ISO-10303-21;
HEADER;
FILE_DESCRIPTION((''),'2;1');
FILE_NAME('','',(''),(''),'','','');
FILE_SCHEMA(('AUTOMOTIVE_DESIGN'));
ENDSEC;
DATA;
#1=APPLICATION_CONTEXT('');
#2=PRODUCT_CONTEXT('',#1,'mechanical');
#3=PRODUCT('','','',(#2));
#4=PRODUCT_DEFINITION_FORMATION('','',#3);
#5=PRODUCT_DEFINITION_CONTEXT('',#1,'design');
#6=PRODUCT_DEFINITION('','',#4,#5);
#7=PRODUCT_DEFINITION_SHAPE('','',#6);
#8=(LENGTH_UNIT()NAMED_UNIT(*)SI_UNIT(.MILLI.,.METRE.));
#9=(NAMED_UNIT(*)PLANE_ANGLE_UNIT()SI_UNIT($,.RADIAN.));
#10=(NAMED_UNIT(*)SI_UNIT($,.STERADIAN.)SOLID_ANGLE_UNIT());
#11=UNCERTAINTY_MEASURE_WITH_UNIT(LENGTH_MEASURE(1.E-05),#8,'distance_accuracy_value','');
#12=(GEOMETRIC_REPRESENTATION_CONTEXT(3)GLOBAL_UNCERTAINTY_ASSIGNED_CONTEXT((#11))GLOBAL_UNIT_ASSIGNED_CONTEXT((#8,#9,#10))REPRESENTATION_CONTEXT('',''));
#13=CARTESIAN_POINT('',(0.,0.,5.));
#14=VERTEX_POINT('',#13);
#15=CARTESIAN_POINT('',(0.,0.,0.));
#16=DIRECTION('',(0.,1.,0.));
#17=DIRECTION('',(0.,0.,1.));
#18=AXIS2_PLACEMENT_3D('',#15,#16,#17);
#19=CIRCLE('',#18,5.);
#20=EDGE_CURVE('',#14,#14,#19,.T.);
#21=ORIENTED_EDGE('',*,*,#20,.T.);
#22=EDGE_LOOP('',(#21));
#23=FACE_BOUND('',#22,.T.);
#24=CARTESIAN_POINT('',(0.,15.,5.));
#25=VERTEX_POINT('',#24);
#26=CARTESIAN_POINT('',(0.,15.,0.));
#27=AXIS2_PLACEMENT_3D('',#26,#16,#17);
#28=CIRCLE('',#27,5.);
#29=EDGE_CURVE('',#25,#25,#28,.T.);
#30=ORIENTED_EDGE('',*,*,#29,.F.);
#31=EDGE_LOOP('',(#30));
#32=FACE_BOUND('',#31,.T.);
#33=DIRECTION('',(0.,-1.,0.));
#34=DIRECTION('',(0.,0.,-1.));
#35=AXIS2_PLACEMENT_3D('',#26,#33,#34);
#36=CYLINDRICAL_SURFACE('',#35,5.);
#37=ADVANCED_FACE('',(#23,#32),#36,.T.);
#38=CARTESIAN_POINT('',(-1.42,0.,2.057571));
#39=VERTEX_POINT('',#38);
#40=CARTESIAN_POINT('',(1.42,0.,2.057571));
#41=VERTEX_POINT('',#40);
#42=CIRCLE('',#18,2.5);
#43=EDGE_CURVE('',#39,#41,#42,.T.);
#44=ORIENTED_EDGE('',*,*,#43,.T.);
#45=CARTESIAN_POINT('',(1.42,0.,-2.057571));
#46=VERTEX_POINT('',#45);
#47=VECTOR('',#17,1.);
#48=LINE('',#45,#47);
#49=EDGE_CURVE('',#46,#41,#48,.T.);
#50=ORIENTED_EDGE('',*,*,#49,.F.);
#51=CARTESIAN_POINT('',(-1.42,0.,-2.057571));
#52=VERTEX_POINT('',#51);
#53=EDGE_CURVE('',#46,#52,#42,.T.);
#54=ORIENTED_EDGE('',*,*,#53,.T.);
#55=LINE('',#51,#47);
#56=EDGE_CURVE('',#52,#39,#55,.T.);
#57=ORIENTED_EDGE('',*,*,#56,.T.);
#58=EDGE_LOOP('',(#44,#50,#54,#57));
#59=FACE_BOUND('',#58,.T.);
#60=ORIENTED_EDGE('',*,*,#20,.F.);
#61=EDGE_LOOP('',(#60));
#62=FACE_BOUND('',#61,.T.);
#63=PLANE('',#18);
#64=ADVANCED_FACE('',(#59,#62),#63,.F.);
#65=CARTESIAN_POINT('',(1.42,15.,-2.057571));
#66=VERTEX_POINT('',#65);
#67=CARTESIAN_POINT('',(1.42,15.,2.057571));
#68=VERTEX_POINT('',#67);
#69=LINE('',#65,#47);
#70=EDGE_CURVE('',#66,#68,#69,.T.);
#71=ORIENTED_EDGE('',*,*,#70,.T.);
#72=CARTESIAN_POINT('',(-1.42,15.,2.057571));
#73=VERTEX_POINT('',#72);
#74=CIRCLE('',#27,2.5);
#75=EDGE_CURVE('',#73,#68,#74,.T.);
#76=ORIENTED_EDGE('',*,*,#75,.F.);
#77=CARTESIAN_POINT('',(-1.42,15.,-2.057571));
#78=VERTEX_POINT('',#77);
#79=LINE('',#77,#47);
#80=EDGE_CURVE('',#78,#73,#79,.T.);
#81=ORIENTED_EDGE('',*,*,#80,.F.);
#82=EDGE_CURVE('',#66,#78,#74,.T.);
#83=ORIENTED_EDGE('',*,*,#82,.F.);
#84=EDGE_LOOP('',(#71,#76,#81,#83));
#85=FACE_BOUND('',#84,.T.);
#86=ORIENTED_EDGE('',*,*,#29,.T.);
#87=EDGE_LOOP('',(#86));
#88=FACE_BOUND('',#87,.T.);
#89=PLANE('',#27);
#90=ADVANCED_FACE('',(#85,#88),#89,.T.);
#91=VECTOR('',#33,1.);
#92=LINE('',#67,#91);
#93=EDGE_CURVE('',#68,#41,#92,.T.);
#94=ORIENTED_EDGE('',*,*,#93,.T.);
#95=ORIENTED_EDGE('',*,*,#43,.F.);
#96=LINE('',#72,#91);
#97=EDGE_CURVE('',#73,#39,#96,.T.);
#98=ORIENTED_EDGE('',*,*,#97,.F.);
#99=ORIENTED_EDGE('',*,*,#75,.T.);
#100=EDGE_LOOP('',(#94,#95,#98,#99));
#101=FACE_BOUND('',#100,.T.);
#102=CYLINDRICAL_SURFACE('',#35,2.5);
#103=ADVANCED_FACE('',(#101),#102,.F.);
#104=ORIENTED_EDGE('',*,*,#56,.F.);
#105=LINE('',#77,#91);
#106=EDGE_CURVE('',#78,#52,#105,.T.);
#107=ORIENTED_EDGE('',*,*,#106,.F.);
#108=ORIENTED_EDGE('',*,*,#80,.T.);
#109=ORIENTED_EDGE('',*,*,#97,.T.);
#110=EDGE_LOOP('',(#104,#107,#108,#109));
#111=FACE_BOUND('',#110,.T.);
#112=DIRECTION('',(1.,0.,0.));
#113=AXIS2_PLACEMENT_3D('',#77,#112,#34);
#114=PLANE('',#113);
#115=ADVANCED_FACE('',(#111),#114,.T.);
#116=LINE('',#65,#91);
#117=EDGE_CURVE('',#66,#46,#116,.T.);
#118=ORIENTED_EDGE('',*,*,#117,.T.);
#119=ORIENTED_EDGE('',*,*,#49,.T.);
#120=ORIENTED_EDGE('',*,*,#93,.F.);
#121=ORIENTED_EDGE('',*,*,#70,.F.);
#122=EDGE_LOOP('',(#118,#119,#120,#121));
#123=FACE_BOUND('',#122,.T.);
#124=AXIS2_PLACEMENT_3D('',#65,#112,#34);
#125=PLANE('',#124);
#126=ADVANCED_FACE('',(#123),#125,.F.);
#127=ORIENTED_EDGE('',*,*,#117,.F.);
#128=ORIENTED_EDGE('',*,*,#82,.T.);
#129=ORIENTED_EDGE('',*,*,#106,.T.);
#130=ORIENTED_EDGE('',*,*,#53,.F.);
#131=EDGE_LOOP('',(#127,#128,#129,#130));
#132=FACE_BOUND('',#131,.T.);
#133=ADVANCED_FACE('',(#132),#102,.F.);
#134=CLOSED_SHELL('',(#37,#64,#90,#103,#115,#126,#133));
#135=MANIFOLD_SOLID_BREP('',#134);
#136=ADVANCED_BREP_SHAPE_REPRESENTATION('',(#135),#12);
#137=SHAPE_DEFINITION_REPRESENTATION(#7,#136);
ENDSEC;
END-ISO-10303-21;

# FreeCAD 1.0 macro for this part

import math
import FreeCAD as App
import Part
import Sketcher

V = App.Vector
Q = App.Units.Quantity

doc = App.newDocument("Part")
body = doc.addObject("PartDesign::Body", "Body")

# Sketch on XZ plane
sketch1 = body.newObject("Sketcher::SketchObject", "Sketch")
sketch1.AttachmentSupport = (doc.getObject("XZ_Plane"), [""])
sketch1.MapMode = "FlatFace"
sketch1.addGeometry(Part.Circle(V(0, 0, 0), V(0, 0, 1), 5), False)
sketch1.addGeometry(Part.LineSegment(V(-1.42, 2.057571, 0), V(-1.42, -2.057571, 0)), False)
sketch1.addGeometry(Part.ArcOfCircle(Part.Circle(V(0, 0, 0), V(0, 0, 1), 2.5), math.radians(-124.610877), math.radians(-55.389123)), False)
sketch1.addGeometry(Part.LineSegment(V(1.42, -2.057571, 0), V(1.42, 2.057571, 0)), False)
sketch1.addGeometry(Part.ArcOfCircle(Part.Circle(V(0, 0, 0), V(0, 0, 1), 2.5), math.radians(55.389123), math.radians(124.610877)), False)
sketch1.addConstraint(Sketcher.Constraint("Coincident", 1, 2, 2, 1))
sketch1.addConstraint(Sketcher.Constraint("Coincident", 2, 2, 3, 1))
sketch1.addConstraint(Sketcher.Constraint("Coincident", 3, 2, 4, 1))
sketch1.addConstraint(Sketcher.Constraint("Coincident", 4, 2, 1, 1))
sketch1.addConstraint(Sketcher.Constraint("Vertical", 1))
sketch1.addConstraint(Sketcher.Constraint("Vertical", 3))
sketch1.addConstraint(Sketcher.Constraint("Coincident", 0, 3, -1, 1))
sketch1.addConstraint(Sketcher.Constraint("Coincident", 2, 3, -1, 1))
sketch1.addConstraint(Sketcher.Constraint("Coincident", 4, 3, -1, 1))
sketch1.addConstraint(Sketcher.Constraint("Equal", 2, 4))
sketch1.addConstraint(Sketcher.Constraint("Horizontal", 1, 2, 2, 2))
sketch1.addConstraint(Sketcher.Constraint("Diameter", 0, Q("10 mm")))
sketch1.addConstraint(Sketcher.Constraint("Radius", 2, Q("2.5 mm")))
sketch1.addConstraint(Sketcher.Constraint("DistanceX", 1, 2, -1, 1, Q("1.42 mm")))
pad1 = body.newObject("PartDesign::Pad", "Pad")
pad1.Profile = sketch1
pad1.Length = 15
pad1.Reversed = True

doc.recompute()
